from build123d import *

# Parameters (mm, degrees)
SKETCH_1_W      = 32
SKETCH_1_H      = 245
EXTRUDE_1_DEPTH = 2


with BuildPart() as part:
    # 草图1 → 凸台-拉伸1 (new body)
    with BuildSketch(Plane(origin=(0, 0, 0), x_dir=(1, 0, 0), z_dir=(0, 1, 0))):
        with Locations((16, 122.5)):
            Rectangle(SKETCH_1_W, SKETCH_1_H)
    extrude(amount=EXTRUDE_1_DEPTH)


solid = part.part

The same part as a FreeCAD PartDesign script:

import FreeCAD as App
import Part
import Sketcher

V = App.Vector

doc = App.newDocument("Part")
body = doc.addObject("PartDesign::Body", "Body")

# Sketch on XZ plane
sketch1 = doc.addObject("Sketcher::SketchObject", "Sketch")
body.addObject(sketch1)
sketch1.AttachmentSupport = (doc.XZ_Plane, [""])
sketch1.MapMode = "FlatFace"
sketch1.addGeometry([
    Part.LineSegment(V(0, -245, 0), V(0, 0, 0)),
    Part.LineSegment(V(0, 0, 0), V(32, 0, 0)),
    Part.LineSegment(V(32, 0, 0), V(32, -245, 0)),
    Part.LineSegment(V(32, -245, 0), V(0, -245, 0)),
], False)
sketch1.addConstraint([
    Sketcher.Constraint("Coincident", 0, 2, 1, 1),
    Sketcher.Constraint("Coincident", 1, 2, 2, 1),
    Sketcher.Constraint("Coincident", 2, 2, 3, 1),
    Sketcher.Constraint("Coincident", 3, 2, 0, 1),
    Sketcher.Constraint("Vertical", 0),
    Sketcher.Constraint("Horizontal", 1),
    Sketcher.Constraint("Vertical", 2),
    Sketcher.Constraint("Horizontal", 3),
    Sketcher.Constraint("Coincident", 0, 2, -1, 1),
    Sketcher.Constraint("DistanceX", 1, 1, 1, 2, 32.0),
    Sketcher.Constraint("DistanceY", 0, 1, 0, 2, 245.0),
])
pad1 = doc.addObject("PartDesign::Pad", "Pad")
body.addObject(pad1)
pad1.Profile = sketch1
pad1.Length = 2
pad1.Reversed = True

doc.recompute()
